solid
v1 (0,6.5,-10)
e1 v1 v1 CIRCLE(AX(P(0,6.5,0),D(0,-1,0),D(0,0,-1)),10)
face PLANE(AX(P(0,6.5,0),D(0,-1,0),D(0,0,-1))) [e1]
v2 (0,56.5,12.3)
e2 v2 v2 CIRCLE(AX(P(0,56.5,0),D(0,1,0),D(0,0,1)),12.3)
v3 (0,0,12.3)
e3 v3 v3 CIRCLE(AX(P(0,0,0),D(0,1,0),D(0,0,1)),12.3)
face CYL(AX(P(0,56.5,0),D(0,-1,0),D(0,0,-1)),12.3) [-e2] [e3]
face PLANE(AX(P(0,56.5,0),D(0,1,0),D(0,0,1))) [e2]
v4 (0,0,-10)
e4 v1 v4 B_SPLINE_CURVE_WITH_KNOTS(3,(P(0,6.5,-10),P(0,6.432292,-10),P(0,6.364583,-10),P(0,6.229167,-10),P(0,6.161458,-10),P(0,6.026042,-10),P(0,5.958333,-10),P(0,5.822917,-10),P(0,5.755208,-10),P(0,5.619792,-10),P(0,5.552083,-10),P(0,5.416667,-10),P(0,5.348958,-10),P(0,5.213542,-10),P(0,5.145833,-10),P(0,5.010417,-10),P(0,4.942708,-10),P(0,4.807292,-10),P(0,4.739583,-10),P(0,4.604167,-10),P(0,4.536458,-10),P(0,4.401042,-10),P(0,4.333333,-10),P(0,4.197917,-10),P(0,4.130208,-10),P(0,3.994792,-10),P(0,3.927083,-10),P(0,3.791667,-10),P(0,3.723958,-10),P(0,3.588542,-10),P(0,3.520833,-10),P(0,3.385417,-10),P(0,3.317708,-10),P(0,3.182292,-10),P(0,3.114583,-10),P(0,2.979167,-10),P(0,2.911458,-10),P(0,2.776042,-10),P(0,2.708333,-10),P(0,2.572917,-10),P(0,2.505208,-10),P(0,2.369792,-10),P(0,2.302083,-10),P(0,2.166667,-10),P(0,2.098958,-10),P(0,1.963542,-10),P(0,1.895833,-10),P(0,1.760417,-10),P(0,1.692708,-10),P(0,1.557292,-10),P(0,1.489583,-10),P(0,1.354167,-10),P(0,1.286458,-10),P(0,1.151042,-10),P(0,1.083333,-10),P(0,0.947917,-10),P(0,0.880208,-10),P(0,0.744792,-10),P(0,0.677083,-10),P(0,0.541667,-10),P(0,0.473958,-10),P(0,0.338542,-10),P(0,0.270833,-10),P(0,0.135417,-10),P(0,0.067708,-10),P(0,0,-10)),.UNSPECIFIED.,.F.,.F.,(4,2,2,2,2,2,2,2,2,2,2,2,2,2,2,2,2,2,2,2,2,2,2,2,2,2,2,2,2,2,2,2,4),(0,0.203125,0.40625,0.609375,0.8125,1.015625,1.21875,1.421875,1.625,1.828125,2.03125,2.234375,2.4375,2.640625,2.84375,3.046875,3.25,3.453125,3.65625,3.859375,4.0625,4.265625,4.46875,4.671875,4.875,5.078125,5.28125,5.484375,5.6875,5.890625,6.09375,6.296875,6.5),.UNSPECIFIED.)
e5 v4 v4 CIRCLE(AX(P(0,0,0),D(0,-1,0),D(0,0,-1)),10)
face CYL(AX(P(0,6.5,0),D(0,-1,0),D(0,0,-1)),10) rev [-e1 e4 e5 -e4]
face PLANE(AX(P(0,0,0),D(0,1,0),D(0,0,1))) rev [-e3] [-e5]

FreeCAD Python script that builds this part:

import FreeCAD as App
import Part
import Sketcher

V = App.Vector

doc = App.newDocument("Part")
body = doc.addObject("PartDesign::Body", "Body")

sketch1 = body.newObject("Sketcher::SketchObject", "Sketch")
sketch1.AttachmentSupport = (doc.getObject("XZ_Plane"), [""])
sketch1.MapMode = "FlatFace"
sketch1.addGeometry(Part.Circle(V(0, 0, 0), V(0, 0, 1), 12), False)
sketch1.addConstraint(Sketcher.Constraint("Coincident", 0, 3, -1, 1))
sketch1.addConstraint(Sketcher.Constraint("Diameter", 0, 24.6))
pad1 = body.newObject("PartDesign::Pad", "Pad")
pad1.Profile = sketch1
pad1.Length = 56.5
pad1.Reversed = True

sketch2 = body.newObject("Sketcher::SketchObject", "Sketch001")
sketch2.AttachmentSupport = (doc.getObject("XZ_Plane"), [""])
sketch2.MapMode = "FlatFace"
sketch2.addGeometry(Part.Circle(V(0, 0, 0), V(0, 0, 1), 10), False)
sketch2.addConstraint(Sketcher.Constraint("Coincident", 0, 3, -1, 1))
sketch2.addConstraint(Sketcher.Constraint("Diameter", 0, 20.0))
pocket1 = body.newObject("PartDesign::Pocket", "Pocket")
pocket1.Profile = sketch2
pocket1.Length = 6.5

doc.recompute()
